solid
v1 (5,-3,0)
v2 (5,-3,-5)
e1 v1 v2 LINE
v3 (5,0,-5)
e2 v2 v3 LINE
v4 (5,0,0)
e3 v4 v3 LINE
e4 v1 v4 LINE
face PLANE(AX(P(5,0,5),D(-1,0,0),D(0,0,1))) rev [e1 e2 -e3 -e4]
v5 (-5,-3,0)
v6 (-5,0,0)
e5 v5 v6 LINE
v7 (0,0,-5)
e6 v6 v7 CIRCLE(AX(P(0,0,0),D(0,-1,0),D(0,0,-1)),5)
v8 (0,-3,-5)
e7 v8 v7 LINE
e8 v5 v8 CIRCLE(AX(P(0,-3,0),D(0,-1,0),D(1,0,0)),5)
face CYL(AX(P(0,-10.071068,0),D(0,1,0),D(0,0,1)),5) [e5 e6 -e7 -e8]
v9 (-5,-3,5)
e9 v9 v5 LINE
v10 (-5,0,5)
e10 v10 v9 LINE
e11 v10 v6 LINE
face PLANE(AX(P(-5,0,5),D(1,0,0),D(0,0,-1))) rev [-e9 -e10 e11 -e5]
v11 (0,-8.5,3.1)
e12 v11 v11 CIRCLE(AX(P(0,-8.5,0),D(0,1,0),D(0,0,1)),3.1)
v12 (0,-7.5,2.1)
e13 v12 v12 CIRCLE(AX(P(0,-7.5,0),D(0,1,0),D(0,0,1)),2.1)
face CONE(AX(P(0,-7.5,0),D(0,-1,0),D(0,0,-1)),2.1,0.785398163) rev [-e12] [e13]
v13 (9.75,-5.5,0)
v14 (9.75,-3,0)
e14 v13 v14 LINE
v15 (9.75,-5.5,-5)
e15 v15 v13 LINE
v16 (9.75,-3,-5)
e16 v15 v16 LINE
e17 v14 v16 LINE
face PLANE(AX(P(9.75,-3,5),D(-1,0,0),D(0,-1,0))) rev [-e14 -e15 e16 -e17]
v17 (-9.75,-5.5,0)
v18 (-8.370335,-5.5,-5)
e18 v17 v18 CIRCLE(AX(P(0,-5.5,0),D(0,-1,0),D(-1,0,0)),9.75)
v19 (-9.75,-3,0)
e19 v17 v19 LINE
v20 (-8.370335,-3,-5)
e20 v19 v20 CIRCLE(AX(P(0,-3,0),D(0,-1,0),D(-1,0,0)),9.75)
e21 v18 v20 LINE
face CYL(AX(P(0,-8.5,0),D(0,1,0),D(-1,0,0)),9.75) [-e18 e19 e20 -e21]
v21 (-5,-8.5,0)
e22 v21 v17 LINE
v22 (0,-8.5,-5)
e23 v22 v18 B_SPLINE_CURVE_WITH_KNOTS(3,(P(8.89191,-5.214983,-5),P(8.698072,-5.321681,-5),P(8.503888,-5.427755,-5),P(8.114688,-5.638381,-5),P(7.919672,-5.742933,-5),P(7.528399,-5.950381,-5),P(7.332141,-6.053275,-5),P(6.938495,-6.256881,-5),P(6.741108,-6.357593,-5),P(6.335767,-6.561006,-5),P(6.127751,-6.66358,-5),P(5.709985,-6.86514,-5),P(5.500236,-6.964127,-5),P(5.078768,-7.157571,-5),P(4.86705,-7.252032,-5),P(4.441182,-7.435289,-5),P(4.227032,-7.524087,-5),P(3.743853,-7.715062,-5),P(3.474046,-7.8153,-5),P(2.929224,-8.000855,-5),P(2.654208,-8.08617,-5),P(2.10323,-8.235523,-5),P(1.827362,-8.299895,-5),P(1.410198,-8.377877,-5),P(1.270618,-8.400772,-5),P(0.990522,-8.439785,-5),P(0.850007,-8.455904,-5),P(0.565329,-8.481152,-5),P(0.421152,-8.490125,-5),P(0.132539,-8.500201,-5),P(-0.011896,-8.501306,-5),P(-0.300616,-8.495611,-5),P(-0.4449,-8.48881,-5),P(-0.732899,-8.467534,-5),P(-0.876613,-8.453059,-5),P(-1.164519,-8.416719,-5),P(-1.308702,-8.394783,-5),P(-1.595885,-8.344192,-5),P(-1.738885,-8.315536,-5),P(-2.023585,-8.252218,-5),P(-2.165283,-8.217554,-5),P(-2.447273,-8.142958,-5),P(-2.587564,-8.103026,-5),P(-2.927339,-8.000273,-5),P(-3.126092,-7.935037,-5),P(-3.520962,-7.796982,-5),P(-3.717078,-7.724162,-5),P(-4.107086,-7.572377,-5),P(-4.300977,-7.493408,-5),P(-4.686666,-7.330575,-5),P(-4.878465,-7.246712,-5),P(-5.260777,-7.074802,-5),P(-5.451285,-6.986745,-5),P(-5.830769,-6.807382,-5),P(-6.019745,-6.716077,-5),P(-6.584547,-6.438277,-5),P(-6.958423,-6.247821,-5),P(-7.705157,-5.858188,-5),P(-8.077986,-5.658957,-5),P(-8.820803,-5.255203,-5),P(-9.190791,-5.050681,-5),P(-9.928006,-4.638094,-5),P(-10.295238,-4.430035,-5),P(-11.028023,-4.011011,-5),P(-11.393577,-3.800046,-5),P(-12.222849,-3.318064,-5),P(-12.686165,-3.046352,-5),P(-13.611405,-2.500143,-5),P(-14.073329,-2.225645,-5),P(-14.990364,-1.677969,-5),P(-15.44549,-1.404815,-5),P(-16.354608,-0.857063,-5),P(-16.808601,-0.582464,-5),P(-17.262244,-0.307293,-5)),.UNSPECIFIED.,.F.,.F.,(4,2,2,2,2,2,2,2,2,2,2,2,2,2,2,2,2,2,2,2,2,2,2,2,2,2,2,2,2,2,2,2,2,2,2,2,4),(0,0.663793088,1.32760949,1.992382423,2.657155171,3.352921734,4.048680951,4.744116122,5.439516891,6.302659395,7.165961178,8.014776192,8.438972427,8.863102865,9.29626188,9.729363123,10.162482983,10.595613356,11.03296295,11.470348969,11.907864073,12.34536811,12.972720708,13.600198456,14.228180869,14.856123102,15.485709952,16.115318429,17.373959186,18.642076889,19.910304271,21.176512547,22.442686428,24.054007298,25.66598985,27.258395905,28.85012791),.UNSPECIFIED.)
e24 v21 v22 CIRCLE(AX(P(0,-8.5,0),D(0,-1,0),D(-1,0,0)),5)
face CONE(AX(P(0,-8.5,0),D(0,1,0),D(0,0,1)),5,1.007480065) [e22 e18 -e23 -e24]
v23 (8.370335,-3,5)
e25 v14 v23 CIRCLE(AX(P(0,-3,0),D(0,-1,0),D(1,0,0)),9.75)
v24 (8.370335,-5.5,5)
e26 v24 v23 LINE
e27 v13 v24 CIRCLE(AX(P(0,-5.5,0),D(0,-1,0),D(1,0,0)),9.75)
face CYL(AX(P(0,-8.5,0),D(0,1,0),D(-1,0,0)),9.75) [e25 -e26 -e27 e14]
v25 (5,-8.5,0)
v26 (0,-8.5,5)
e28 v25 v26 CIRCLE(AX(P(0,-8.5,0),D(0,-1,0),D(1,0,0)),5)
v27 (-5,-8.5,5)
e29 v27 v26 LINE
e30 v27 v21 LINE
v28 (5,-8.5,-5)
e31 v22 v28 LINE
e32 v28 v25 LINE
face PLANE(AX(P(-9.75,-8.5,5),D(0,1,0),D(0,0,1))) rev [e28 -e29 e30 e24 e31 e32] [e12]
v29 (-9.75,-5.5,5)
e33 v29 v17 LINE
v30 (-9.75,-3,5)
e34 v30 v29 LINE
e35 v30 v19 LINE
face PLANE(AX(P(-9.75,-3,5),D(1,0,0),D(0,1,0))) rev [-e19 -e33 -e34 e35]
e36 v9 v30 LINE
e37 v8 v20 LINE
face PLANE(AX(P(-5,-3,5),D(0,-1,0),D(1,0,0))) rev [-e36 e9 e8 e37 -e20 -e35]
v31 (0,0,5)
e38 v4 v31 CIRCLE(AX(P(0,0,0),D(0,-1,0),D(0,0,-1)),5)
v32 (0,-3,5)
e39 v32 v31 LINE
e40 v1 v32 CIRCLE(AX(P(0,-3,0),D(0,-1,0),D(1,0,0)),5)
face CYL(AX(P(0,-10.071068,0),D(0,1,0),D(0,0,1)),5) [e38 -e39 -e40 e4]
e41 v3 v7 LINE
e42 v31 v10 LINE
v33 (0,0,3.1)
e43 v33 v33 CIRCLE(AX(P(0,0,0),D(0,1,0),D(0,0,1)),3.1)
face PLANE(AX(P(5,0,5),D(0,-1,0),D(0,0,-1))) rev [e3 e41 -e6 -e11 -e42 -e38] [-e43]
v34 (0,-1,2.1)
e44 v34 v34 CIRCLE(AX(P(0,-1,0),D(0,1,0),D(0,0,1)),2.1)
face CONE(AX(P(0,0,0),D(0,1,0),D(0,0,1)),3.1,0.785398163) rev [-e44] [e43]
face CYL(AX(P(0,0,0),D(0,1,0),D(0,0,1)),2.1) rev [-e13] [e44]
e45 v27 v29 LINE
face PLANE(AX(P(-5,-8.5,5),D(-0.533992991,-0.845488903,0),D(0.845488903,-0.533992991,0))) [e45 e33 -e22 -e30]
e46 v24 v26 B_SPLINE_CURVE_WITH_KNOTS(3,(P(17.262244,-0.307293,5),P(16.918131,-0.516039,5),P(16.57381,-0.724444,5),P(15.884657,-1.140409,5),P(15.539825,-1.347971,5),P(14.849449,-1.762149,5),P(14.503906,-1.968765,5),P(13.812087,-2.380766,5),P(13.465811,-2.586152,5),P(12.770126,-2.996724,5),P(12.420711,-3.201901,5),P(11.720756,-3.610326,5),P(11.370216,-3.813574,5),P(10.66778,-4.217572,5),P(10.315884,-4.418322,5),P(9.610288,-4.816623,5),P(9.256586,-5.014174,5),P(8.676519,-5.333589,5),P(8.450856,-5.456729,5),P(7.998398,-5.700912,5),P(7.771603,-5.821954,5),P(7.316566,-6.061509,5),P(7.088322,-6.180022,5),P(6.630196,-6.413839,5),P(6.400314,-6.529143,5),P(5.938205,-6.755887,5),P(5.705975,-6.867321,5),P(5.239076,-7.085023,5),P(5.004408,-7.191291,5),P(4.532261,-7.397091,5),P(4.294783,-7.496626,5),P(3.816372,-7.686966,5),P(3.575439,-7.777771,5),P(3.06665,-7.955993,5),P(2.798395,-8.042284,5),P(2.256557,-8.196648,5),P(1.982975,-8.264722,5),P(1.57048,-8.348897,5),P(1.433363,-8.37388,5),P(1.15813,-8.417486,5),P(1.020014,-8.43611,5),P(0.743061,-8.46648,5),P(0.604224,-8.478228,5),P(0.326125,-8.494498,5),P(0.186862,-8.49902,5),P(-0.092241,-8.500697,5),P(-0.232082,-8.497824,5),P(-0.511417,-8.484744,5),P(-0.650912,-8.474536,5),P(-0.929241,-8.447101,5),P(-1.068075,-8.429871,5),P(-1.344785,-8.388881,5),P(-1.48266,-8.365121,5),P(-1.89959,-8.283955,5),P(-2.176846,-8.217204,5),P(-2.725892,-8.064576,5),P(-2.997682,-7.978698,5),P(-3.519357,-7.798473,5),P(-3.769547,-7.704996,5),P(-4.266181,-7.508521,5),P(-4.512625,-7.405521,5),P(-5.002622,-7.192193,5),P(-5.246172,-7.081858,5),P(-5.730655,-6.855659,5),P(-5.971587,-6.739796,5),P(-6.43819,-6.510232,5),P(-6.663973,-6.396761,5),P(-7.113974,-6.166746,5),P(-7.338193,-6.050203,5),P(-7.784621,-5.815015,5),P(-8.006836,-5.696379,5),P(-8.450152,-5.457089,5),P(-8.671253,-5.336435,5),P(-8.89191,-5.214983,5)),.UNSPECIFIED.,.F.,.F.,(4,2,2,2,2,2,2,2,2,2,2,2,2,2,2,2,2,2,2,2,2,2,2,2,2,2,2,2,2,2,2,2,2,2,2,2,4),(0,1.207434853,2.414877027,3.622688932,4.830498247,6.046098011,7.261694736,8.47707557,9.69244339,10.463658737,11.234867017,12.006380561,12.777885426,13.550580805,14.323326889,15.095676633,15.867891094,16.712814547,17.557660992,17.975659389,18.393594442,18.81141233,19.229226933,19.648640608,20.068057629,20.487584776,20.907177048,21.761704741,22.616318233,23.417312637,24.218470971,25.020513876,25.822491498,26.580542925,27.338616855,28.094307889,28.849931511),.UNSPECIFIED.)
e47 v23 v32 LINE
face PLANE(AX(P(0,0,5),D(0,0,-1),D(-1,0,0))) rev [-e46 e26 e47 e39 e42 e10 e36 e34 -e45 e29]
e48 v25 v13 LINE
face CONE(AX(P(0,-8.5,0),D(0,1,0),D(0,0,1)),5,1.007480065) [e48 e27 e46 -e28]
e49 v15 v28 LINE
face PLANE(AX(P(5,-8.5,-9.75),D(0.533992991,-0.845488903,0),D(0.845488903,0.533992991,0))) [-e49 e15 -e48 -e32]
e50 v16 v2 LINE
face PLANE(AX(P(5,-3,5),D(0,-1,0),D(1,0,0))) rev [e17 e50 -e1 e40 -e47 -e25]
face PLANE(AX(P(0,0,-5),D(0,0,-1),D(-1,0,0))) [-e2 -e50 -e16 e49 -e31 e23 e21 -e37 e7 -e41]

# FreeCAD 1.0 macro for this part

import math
import FreeCAD as App
import Part
import Sketcher

V = App.Vector
Q = App.Units.Quantity


def add_polygon(sketch, points):
    """Adds a closed chain of lines whose ends are joined by coincident constraints."""
    first, n = sketch.GeometryCount, len(points)
    for a, b in zip(points, points[1:] + points[:1]):
        sketch.addGeometry(Part.LineSegment(App.Vector(*a, 0), App.Vector(*b, 0)), False)
    for i in range(n):
        sketch.addConstraint(Sketcher.Constraint("Coincident", first + i, 2, first + (i + 1) % n, 1))

doc = App.newDocument("Part")
params = doc.addObject("Spreadsheet::Sheet", "Params")
for row, (alias, value) in enumerate([
    ("sketch1_width", "10 mm"),
    ("sketch1_height", "3 mm"),
    ("sketch1_width2", "19.5 mm"),
    ("sketch1_height2", "5.5 mm"),
    ("pad1_length", "10 mm"),
    ("sketch2_width", "8.5 mm"),
    ("sketch2_width2", "6.5 mm"),
    ("sketch2_height", "3.1 mm"),
    ("groove_angle", "360 deg"),
    ("sketch3_radius", "5 mm"),
    ("pocket1_length", "3 mm"),
    ("sketch4_height", "5 mm"),
    ("sketch4_radius", "9.75 mm"),
    ("sketch5_height", "3 mm"),
    ("sketch5_width", "4.75 mm"),
    ("sketch6_radius", "9.75 mm"),
], start=1):
    params.set(f"A{row}", alias)
    params.set(f"B{row}", "=" + value)
    params.setAlias(f"B{row}", alias)

body = doc.addObject("PartDesign::Body", "Body")

sketch1 = doc.addObject("Sketcher::SketchObject", "Sketch")
body.addObject(sketch1)
sketch1.AttachmentSupport = (doc.XY_Plane, [""])
sketch1.MapMode = "FlatFace"
add_polygon(sketch1, [(5, 0), (-5, 0), (-5, -3), (-9.8, -3), (-9.8, -8.5), (9.8, -8.5), (9.8, -3), (5, -3)])
sketch1.addConstraint([
    Sketcher.Constraint("Horizontal", 0),
    Sketcher.Constraint("Vertical", 1),
    Sketcher.Constraint("Horizontal", 2),
    Sketcher.Constraint("Vertical", 3),
    Sketcher.Constraint("Horizontal", 4),
    Sketcher.Constraint("Vertical", 5),
    Sketcher.Constraint("Horizontal", 6),
    Sketcher.Constraint("Vertical", 7),
    Sketcher.Constraint("Symmetric", 0, 2, 7, 2, -1, 1),
    Sketcher.Constraint("Symmetric", 2, 2, 5, 2, -2),
    Sketcher.Constraint("DistanceX", 0, 2, 0, 1, Q("10 mm")),
    Sketcher.Constraint("DistanceY", 1, 2, 1, 1, Q("3 mm")),
    Sketcher.Constraint("DistanceX", 4, 1, 4, 2, Q("19.5 mm")),
    Sketcher.Constraint("DistanceY", 3, 2, 3, 1, Q("5.5 mm")),
])
sketch1.setExpression("Constraints[18]", "Params.sketch1_width")
sketch1.setExpression("Constraints[19]", "Params.sketch1_height")
sketch1.setExpression("Constraints[20]", "Params.sketch1_width2")
sketch1.setExpression("Constraints[21]", "Params.sketch1_height2")
pad1 = doc.addObject("PartDesign::Pad", "Pad")
body.addObject(pad1)
pad1.Profile = sketch1
pad1.setExpression("Length", "Params.pad1_length")
pad1.Midplane = True

sketch2 = doc.addObject("Sketcher::SketchObject", "Sketch001")
body.addObject(sketch2)
sketch2.AttachmentSupport = (doc.YZ_Plane, [""])
sketch2.MapMode = "FlatFace"
add_polygon(sketch2, [(-8.5, 0), (0, 0), (0, 3.1), (-1, 2.1), (-7.5, 2.1), (-8.5, 3.1)])
sketch2.addConstraint([
    Sketcher.Constraint("Horizontal", 0),
    Sketcher.Constraint("Vertical", 1),
    Sketcher.Constraint("Horizontal", 3),
    Sketcher.Constraint("Vertical", 5),
    Sketcher.Constraint("Coincident", 0, 2, -1, 1),
    Sketcher.Constraint("Perpendicular", 2, 4),
    Sketcher.Constraint("Horizontal", 1, 2, 4, 2),
    Sketcher.Constraint("Equal", 2, 4),
    Sketcher.Constraint("DistanceX", 0, 1, 0, 2, Q("8.5 mm")),
    Sketcher.Constraint("DistanceX", 3, 2, 3, 1, Q("6.5 mm")),
    Sketcher.Constraint("DistanceY", 1, 1, 1, 2, Q("3.1 mm")),
])
sketch2.setExpression("Constraints[14]", "Params.sketch2_width")
sketch2.setExpression("Constraints[15]", "Params.sketch2_width2")
sketch2.setExpression("Constraints[16]", "Params.sketch2_height")
groove = doc.addObject("PartDesign::Groove", "Groove")
body.addObject(groove)
groove.Profile = sketch2
groove.ReferenceAxis = (sketch2, ["H_Axis"])
groove.setExpression("Angle", "Params.groove_angle")

sketch3 = doc.addObject("Sketcher::SketchObject", "Sketch002")
body.addObject(sketch3)
sketch3.AttachmentSupport = (doc.XZ_Plane, [""])
sketch3.MapMode = "FlatFace"
sketch3.addGeometry([
    Part.LineSegment(V(-5, -5, 0), V(-5, 0, 0)),
    Part.ArcOfCircle(Part.Circle(V(0, 0, 0), V(0, 0, 1), 5), math.radians(180), math.radians(270)),
    Part.LineSegment(V(0, -5, 0), V(-5, -5, 0)),
    Part.LineSegment(V(0, 5, 0), V(5, 5, 0)),
    Part.LineSegment(V(5, 5, 0), V(5, 0, 0)),
    Part.ArcOfCircle(Part.Circle(V(0, 0, 0), V(0, 0, 1), 5), math.radians(0), math.radians(90)),
], False)
sketch3.addConstraint([
    Sketcher.Constraint("Tangent", 0, 2, 1, 1),
    Sketcher.Constraint("Tangent", 1, 2, 2, 1),
    Sketcher.Constraint("Coincident", 2, 2, 0, 1),
    Sketcher.Constraint("Coincident", 3, 2, 4, 1),
    Sketcher.Constraint("Tangent", 4, 2, 5, 1),
    Sketcher.Constraint("Tangent", 5, 2, 3, 1),
    Sketcher.Constraint("Vertical", 0),
    Sketcher.Constraint("Horizontal", 2),
    Sketcher.Constraint("Horizontal", 3),
    Sketcher.Constraint("Vertical", 4),
    Sketcher.Constraint("Coincident", 1, 3, -1, 1),
    Sketcher.Constraint("Coincident", 5, 3, -1, 1),
    Sketcher.Constraint("Equal", 1, 5),
    Sketcher.Constraint("Radius", 1, Q("5 mm")),
])
sketch3.setExpression("Constraints[13]", "Params.sketch3_radius")
pocket1 = doc.addObject("PartDesign::Pocket", "Pocket")
body.addObject(pocket1)
pocket1.Profile = sketch3
pocket1.setExpression("Length", "Params.pocket1_length")
pocket1.Reversed = True

sketch4 = doc.addObject("Sketcher::SketchObject", "Sketch003")
body.addObject(sketch4)
sketch4.AttachmentSupport = (doc.XZ_Plane, [""])
sketch4.MapMode = "FlatFace"
sketch4.AttachmentOffset = App.Placement(V(0, 0, 3), App.Rotation())
sketch4.addGeometry([
    Part.LineSegment(V(-9.8, -5, 0), V(-9.8, 0, 0)),
    Part.ArcOfCircle(Part.Circle(V(0, 0, 0), V(0, 0, 1), 9.7), math.radians(180), math.radians(211)),
    Part.LineSegment(V(-8.4, -5, 0), V(-9.8, -5, 0)),
    Part.LineSegment(V(9.8, 5, 0), V(9.8, 0, 0)),
    Part.ArcOfCircle(Part.Circle(V(0, 0, 0), V(0, 0, 1), 9.7), math.radians(0), math.radians(31)),
    Part.LineSegment(V(8.4, 5, 0), V(9.8, 5, 0)),
], False)
sketch4.addConstraint([
    Sketcher.Constraint("Tangent", 0, 2, 1, 1),
    Sketcher.Constraint("Coincident", 1, 2, 2, 1),
    Sketcher.Constraint("Coincident", 2, 2, 0, 1),
    Sketcher.Constraint("Tangent", 3, 2, 4, 1),
    Sketcher.Constraint("Coincident", 4, 2, 5, 1),
    Sketcher.Constraint("Coincident", 5, 2, 3, 1),
    Sketcher.Constraint("Vertical", 0),
    Sketcher.Constraint("Horizontal", 2),
    Sketcher.Constraint("Vertical", 3),
    Sketcher.Constraint("Horizontal", 5),
    Sketcher.Constraint("Coincident", 1, 3, -1, 1),
    Sketcher.Constraint("Coincident", 4, 3, -1, 1),
    Sketcher.Constraint("Equal", 1, 4),
    Sketcher.Constraint("Equal", 2, 5),
    Sketcher.Constraint("DistanceY", 0, 1, 0, 2, Q("5 mm")),
    Sketcher.Constraint("Radius", 1, Q("9.75 mm")),
])
sketch4.setExpression("Constraints[14]", "Params.sketch4_height")
sketch4.setExpression("Constraints[15]", "Params.sketch4_radius")
pocket2 = doc.addObject("PartDesign::Pocket", "Pocket001")
body.addObject(pocket2)
pocket2.Profile = sketch4
pocket2.Type = "ThroughAll"
pocket2.Reversed = True

sketch5 = doc.addObject("Sketcher::SketchObject", "Sketch004")
body.addObject(sketch5)
sketch5.AttachmentSupport = (doc.XY_Plane, [""])
sketch5.MapMode = "FlatFace"
sketch5.AttachmentOffset = App.Placement(V(0, 0, 5), App.Rotation())
add_polygon(sketch5, [(-9.8, -5.5), (-9.8, -8.5), (-5, -8.5)])
sketch5.addConstraint([
    Sketcher.Constraint("Vertical", 0),
    Sketcher.Constraint("Horizontal", 1),
    Sketcher.Constraint("DistanceY", 0, 2, 0, 1, Q("3 mm")),
    Sketcher.Constraint("DistanceX", 1, 2, -1, 1, Q("5 mm")),
    Sketcher.Constraint("DistanceX", 1, 1, 1, 2, Q("4.75 mm")),
    Sketcher.Constraint("DistanceY", 0, 2, -1, 1, Q("8.5 mm")),
])
sketch5.setExpression("Constraints[5]", "Params.sketch5_height")
sketch5.setExpression("Constraints[7]", "Params.sketch5_width")

sketch6 = doc.addObject("Sketcher::SketchObject", "Sketch005")
body.addObject(sketch6)
sketch6.AttachmentSupport = (doc.XZ_Plane, [""])
sketch6.MapMode = "FlatFace"
sketch6.AttachmentOffset = App.Placement(V(0, 0, 8.5), App.Rotation())
sketch6.addGeometry([
    Part.LineSegment(V(0, 10, 0), V(-10, 10, 0)),
    Part.LineSegment(V(-10, 10, 0), V(-10, 0, 0)),
    Part.ArcOfCircle(Part.Circle(V(0, 0, 0), V(0, 0, 1), 10), math.radians(180), math.radians(270)),
    Part.LineSegment(V(0, -10, 0), V(10, -10, 0)),
    Part.LineSegment(V(10, -10, 0), V(10, 0, 0)),
    Part.ArcOfCircle(Part.Circle(V(0, 0, 0), V(0, 0, 1), 10), math.radians(0), math.radians(90)),
], False)
sketch6.addConstraint([
    Sketcher.Constraint("Coincident", 0, 2, 1, 1),
    Sketcher.Constraint("Tangent", 1, 2, 2, 1),
    Sketcher.Constraint("Tangent", 2, 2, 3, 1),
    Sketcher.Constraint("Coincident", 3, 2, 4, 1),
    Sketcher.Constraint("Tangent", 4, 2, 5, 1),
    Sketcher.Constraint("Tangent", 5, 2, 0, 1),
    Sketcher.Constraint("Horizontal", 0),
    Sketcher.Constraint("Vertical", 1),
    Sketcher.Constraint("Horizontal", 3),
    Sketcher.Constraint("Vertical", 4),
    Sketcher.Constraint("Coincident", 2, 3, -1, 1),
    Sketcher.Constraint("Coincident", 5, 3, -1, 1),
    Sketcher.Constraint("Equal", 2, 5),
    Sketcher.Constraint("Radius", 2, Q("9.75 mm")),
])
sketch6.setExpression("Constraints[13]", "Params.sketch6_radius")
doc.recompute()

subtractivepipe = doc.addObject("PartDesign::SubtractivePipe", "SubtractivePipe")
body.addObject(subtractivepipe)
subtractivepipe.Profile = sketch5
subtractivepipe.Spine = (sketch6, ["Edge1", "Edge2", "Edge3", "Edge4", "Edge5", "Edge6"])
subtractivepipe.Transition = "Right corner"

doc.recompute()
